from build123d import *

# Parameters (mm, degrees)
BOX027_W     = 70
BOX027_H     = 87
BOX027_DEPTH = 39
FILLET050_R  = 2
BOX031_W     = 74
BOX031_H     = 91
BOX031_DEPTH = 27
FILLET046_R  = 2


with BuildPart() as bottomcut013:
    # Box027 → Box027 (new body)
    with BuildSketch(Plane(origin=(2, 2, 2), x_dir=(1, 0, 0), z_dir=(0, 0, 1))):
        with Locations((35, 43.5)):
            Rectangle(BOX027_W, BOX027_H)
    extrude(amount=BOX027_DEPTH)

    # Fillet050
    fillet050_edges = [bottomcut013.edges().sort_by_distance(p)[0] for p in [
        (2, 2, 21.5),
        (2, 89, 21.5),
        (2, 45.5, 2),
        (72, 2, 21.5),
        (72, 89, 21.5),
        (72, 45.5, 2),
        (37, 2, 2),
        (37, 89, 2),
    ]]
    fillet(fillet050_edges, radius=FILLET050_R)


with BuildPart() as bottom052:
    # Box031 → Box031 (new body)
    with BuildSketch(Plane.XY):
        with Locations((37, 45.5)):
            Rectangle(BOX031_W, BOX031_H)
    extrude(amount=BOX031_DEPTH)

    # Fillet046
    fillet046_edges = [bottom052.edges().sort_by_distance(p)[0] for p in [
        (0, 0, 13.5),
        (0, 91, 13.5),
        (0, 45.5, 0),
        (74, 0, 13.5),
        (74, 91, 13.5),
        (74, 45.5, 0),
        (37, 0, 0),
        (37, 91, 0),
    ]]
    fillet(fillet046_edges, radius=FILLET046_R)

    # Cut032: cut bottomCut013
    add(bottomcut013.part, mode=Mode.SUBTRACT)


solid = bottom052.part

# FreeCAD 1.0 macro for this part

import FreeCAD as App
import Part
import Sketcher
from FreeCAD import Vector


def edges_at(feature, points):
    """Names of the edges that pass closest to the given points."""
    edges = feature.Shape.Edges
    near = lambda p: min(range(len(edges)), key=lambda i: edges[i].distToShape(Part.Vertex(*p))[0])
    return sorted({f"Edge{near(p) + 1}" for p in points})

doc = App.newDocument("Part")
body = doc.addObject("PartDesign::Body", "Body")

# Sketch on XY plane
sketch1 = body.newObject("Sketcher::SketchObject", "Sketch")
sketch1.AttachmentSupport = (doc.getObject("XY_Plane"), [""])
sketch1.MapMode = "FlatFace"
sketch1.AttachmentOffset = App.Placement(Vector(0, 0, 2), App.Rotation())
sketch1.addGeometry([
    Part.LineSegment(Vector(2, 89, 0), Vector(2, 2, 0)),
    Part.LineSegment(Vector(2, 2, 0), Vector(72, 2, 0)),
    Part.LineSegment(Vector(72, 2, 0), Vector(72, 89, 0)),
    Part.LineSegment(Vector(72, 89, 0), Vector(2, 89, 0)),
], False)
sketch1.addConstraint([
    Sketcher.Constraint("Coincident", 0, 2, 1, 1),
    Sketcher.Constraint("Coincident", 1, 2, 2, 1),
    Sketcher.Constraint("Coincident", 2, 2, 3, 1),
    Sketcher.Constraint("Coincident", 3, 2, 0, 1),
    Sketcher.Constraint("Vertical", 0),
    Sketcher.Constraint("Horizontal", 1),
    Sketcher.Constraint("Vertical", 2),
    Sketcher.Constraint("Horizontal", 3),
    Sketcher.Constraint("DistanceX", 1, 1, 1, 2, 70.0),
    Sketcher.Constraint("DistanceY", 0, 2, 0, 1, 87.0),
    Sketcher.Constraint("DistanceX", -1, 1, 0, 2, 2.0),
    Sketcher.Constraint("DistanceY", -1, 1, 0, 2, 2.0),
])
pad1 = body.newObject("PartDesign::Pad", "Pad")
pad1.Profile = sketch1
pad1.Length = 39
doc.recompute()

fillet = body.newObject("PartDesign::Fillet", "Fillet")
fillet.Base = (pad1, edges_at(pad1, [
    (2, 2, 21.5),
    (2, 89, 21.5),
    (2, 45.5, 2),
    (72, 2, 21.5),
    (72, 89, 21.5),
    (72, 45.5, 2),
    (37, 2, 2),
    (37, 89, 2),
]))
fillet.Radius = 2
body2 = doc.addObject("PartDesign::Body", "Body001")

# Sketch on XY plane
sketch2 = body2.newObject("Sketcher::SketchObject", "Sketch001")
sketch2.AttachmentSupport = (doc.getObject("XY_Plane001"), [""])
sketch2.MapMode = "FlatFace"
sketch2.addGeometry([
    Part.LineSegment(Vector(0, 91, 0), Vector(0, 0, 0)),
    Part.LineSegment(Vector(0, 0, 0), Vector(74, 0, 0)),
    Part.LineSegment(Vector(74, 0, 0), Vector(74, 91, 0)),
    Part.LineSegment(Vector(74, 91, 0), Vector(0, 91, 0)),
], False)
sketch2.addConstraint([
    Sketcher.Constraint("Coincident", 0, 2, 1, 1),
    Sketcher.Constraint("Coincident", 1, 2, 2, 1),
    Sketcher.Constraint("Coincident", 2, 2, 3, 1),
    Sketcher.Constraint("Coincident", 3, 2, 0, 1),
    Sketcher.Constraint("Vertical", 0),
    Sketcher.Constraint("Horizontal", 1),
    Sketcher.Constraint("Vertical", 2),
    Sketcher.Constraint("Horizontal", 3),
    Sketcher.Constraint("Coincident", 0, 2, -1, 1),
    Sketcher.Constraint("DistanceX", 1, 1, 1, 2, 74.0),
    Sketcher.Constraint("DistanceY", 0, 2, 0, 1, 91.0),
])
pad2 = body2.newObject("PartDesign::Pad", "Pad001")
pad2.Profile = sketch2
pad2.Length = 27
doc.recompute()

fillet2 = body2.newObject("PartDesign::Fillet", "Fillet001")
fillet2.Base = (pad2, edges_at(pad2, [
    (0, 0, 13.5),
    (0, 91, 13.5),
    (0, 45.5, 0),
    (74, 0, 13.5),
    (74, 91, 13.5),
    (74, 45.5, 0),
    (37, 0, 0),
    (37, 91, 0),
]))
fillet2.Radius = 2
doc.recompute()

boolean = body2.newObject("PartDesign::Boolean", "Boolean")
boolean.Type = "Cut"
boolean.addObjects([body])

doc.recompute()
